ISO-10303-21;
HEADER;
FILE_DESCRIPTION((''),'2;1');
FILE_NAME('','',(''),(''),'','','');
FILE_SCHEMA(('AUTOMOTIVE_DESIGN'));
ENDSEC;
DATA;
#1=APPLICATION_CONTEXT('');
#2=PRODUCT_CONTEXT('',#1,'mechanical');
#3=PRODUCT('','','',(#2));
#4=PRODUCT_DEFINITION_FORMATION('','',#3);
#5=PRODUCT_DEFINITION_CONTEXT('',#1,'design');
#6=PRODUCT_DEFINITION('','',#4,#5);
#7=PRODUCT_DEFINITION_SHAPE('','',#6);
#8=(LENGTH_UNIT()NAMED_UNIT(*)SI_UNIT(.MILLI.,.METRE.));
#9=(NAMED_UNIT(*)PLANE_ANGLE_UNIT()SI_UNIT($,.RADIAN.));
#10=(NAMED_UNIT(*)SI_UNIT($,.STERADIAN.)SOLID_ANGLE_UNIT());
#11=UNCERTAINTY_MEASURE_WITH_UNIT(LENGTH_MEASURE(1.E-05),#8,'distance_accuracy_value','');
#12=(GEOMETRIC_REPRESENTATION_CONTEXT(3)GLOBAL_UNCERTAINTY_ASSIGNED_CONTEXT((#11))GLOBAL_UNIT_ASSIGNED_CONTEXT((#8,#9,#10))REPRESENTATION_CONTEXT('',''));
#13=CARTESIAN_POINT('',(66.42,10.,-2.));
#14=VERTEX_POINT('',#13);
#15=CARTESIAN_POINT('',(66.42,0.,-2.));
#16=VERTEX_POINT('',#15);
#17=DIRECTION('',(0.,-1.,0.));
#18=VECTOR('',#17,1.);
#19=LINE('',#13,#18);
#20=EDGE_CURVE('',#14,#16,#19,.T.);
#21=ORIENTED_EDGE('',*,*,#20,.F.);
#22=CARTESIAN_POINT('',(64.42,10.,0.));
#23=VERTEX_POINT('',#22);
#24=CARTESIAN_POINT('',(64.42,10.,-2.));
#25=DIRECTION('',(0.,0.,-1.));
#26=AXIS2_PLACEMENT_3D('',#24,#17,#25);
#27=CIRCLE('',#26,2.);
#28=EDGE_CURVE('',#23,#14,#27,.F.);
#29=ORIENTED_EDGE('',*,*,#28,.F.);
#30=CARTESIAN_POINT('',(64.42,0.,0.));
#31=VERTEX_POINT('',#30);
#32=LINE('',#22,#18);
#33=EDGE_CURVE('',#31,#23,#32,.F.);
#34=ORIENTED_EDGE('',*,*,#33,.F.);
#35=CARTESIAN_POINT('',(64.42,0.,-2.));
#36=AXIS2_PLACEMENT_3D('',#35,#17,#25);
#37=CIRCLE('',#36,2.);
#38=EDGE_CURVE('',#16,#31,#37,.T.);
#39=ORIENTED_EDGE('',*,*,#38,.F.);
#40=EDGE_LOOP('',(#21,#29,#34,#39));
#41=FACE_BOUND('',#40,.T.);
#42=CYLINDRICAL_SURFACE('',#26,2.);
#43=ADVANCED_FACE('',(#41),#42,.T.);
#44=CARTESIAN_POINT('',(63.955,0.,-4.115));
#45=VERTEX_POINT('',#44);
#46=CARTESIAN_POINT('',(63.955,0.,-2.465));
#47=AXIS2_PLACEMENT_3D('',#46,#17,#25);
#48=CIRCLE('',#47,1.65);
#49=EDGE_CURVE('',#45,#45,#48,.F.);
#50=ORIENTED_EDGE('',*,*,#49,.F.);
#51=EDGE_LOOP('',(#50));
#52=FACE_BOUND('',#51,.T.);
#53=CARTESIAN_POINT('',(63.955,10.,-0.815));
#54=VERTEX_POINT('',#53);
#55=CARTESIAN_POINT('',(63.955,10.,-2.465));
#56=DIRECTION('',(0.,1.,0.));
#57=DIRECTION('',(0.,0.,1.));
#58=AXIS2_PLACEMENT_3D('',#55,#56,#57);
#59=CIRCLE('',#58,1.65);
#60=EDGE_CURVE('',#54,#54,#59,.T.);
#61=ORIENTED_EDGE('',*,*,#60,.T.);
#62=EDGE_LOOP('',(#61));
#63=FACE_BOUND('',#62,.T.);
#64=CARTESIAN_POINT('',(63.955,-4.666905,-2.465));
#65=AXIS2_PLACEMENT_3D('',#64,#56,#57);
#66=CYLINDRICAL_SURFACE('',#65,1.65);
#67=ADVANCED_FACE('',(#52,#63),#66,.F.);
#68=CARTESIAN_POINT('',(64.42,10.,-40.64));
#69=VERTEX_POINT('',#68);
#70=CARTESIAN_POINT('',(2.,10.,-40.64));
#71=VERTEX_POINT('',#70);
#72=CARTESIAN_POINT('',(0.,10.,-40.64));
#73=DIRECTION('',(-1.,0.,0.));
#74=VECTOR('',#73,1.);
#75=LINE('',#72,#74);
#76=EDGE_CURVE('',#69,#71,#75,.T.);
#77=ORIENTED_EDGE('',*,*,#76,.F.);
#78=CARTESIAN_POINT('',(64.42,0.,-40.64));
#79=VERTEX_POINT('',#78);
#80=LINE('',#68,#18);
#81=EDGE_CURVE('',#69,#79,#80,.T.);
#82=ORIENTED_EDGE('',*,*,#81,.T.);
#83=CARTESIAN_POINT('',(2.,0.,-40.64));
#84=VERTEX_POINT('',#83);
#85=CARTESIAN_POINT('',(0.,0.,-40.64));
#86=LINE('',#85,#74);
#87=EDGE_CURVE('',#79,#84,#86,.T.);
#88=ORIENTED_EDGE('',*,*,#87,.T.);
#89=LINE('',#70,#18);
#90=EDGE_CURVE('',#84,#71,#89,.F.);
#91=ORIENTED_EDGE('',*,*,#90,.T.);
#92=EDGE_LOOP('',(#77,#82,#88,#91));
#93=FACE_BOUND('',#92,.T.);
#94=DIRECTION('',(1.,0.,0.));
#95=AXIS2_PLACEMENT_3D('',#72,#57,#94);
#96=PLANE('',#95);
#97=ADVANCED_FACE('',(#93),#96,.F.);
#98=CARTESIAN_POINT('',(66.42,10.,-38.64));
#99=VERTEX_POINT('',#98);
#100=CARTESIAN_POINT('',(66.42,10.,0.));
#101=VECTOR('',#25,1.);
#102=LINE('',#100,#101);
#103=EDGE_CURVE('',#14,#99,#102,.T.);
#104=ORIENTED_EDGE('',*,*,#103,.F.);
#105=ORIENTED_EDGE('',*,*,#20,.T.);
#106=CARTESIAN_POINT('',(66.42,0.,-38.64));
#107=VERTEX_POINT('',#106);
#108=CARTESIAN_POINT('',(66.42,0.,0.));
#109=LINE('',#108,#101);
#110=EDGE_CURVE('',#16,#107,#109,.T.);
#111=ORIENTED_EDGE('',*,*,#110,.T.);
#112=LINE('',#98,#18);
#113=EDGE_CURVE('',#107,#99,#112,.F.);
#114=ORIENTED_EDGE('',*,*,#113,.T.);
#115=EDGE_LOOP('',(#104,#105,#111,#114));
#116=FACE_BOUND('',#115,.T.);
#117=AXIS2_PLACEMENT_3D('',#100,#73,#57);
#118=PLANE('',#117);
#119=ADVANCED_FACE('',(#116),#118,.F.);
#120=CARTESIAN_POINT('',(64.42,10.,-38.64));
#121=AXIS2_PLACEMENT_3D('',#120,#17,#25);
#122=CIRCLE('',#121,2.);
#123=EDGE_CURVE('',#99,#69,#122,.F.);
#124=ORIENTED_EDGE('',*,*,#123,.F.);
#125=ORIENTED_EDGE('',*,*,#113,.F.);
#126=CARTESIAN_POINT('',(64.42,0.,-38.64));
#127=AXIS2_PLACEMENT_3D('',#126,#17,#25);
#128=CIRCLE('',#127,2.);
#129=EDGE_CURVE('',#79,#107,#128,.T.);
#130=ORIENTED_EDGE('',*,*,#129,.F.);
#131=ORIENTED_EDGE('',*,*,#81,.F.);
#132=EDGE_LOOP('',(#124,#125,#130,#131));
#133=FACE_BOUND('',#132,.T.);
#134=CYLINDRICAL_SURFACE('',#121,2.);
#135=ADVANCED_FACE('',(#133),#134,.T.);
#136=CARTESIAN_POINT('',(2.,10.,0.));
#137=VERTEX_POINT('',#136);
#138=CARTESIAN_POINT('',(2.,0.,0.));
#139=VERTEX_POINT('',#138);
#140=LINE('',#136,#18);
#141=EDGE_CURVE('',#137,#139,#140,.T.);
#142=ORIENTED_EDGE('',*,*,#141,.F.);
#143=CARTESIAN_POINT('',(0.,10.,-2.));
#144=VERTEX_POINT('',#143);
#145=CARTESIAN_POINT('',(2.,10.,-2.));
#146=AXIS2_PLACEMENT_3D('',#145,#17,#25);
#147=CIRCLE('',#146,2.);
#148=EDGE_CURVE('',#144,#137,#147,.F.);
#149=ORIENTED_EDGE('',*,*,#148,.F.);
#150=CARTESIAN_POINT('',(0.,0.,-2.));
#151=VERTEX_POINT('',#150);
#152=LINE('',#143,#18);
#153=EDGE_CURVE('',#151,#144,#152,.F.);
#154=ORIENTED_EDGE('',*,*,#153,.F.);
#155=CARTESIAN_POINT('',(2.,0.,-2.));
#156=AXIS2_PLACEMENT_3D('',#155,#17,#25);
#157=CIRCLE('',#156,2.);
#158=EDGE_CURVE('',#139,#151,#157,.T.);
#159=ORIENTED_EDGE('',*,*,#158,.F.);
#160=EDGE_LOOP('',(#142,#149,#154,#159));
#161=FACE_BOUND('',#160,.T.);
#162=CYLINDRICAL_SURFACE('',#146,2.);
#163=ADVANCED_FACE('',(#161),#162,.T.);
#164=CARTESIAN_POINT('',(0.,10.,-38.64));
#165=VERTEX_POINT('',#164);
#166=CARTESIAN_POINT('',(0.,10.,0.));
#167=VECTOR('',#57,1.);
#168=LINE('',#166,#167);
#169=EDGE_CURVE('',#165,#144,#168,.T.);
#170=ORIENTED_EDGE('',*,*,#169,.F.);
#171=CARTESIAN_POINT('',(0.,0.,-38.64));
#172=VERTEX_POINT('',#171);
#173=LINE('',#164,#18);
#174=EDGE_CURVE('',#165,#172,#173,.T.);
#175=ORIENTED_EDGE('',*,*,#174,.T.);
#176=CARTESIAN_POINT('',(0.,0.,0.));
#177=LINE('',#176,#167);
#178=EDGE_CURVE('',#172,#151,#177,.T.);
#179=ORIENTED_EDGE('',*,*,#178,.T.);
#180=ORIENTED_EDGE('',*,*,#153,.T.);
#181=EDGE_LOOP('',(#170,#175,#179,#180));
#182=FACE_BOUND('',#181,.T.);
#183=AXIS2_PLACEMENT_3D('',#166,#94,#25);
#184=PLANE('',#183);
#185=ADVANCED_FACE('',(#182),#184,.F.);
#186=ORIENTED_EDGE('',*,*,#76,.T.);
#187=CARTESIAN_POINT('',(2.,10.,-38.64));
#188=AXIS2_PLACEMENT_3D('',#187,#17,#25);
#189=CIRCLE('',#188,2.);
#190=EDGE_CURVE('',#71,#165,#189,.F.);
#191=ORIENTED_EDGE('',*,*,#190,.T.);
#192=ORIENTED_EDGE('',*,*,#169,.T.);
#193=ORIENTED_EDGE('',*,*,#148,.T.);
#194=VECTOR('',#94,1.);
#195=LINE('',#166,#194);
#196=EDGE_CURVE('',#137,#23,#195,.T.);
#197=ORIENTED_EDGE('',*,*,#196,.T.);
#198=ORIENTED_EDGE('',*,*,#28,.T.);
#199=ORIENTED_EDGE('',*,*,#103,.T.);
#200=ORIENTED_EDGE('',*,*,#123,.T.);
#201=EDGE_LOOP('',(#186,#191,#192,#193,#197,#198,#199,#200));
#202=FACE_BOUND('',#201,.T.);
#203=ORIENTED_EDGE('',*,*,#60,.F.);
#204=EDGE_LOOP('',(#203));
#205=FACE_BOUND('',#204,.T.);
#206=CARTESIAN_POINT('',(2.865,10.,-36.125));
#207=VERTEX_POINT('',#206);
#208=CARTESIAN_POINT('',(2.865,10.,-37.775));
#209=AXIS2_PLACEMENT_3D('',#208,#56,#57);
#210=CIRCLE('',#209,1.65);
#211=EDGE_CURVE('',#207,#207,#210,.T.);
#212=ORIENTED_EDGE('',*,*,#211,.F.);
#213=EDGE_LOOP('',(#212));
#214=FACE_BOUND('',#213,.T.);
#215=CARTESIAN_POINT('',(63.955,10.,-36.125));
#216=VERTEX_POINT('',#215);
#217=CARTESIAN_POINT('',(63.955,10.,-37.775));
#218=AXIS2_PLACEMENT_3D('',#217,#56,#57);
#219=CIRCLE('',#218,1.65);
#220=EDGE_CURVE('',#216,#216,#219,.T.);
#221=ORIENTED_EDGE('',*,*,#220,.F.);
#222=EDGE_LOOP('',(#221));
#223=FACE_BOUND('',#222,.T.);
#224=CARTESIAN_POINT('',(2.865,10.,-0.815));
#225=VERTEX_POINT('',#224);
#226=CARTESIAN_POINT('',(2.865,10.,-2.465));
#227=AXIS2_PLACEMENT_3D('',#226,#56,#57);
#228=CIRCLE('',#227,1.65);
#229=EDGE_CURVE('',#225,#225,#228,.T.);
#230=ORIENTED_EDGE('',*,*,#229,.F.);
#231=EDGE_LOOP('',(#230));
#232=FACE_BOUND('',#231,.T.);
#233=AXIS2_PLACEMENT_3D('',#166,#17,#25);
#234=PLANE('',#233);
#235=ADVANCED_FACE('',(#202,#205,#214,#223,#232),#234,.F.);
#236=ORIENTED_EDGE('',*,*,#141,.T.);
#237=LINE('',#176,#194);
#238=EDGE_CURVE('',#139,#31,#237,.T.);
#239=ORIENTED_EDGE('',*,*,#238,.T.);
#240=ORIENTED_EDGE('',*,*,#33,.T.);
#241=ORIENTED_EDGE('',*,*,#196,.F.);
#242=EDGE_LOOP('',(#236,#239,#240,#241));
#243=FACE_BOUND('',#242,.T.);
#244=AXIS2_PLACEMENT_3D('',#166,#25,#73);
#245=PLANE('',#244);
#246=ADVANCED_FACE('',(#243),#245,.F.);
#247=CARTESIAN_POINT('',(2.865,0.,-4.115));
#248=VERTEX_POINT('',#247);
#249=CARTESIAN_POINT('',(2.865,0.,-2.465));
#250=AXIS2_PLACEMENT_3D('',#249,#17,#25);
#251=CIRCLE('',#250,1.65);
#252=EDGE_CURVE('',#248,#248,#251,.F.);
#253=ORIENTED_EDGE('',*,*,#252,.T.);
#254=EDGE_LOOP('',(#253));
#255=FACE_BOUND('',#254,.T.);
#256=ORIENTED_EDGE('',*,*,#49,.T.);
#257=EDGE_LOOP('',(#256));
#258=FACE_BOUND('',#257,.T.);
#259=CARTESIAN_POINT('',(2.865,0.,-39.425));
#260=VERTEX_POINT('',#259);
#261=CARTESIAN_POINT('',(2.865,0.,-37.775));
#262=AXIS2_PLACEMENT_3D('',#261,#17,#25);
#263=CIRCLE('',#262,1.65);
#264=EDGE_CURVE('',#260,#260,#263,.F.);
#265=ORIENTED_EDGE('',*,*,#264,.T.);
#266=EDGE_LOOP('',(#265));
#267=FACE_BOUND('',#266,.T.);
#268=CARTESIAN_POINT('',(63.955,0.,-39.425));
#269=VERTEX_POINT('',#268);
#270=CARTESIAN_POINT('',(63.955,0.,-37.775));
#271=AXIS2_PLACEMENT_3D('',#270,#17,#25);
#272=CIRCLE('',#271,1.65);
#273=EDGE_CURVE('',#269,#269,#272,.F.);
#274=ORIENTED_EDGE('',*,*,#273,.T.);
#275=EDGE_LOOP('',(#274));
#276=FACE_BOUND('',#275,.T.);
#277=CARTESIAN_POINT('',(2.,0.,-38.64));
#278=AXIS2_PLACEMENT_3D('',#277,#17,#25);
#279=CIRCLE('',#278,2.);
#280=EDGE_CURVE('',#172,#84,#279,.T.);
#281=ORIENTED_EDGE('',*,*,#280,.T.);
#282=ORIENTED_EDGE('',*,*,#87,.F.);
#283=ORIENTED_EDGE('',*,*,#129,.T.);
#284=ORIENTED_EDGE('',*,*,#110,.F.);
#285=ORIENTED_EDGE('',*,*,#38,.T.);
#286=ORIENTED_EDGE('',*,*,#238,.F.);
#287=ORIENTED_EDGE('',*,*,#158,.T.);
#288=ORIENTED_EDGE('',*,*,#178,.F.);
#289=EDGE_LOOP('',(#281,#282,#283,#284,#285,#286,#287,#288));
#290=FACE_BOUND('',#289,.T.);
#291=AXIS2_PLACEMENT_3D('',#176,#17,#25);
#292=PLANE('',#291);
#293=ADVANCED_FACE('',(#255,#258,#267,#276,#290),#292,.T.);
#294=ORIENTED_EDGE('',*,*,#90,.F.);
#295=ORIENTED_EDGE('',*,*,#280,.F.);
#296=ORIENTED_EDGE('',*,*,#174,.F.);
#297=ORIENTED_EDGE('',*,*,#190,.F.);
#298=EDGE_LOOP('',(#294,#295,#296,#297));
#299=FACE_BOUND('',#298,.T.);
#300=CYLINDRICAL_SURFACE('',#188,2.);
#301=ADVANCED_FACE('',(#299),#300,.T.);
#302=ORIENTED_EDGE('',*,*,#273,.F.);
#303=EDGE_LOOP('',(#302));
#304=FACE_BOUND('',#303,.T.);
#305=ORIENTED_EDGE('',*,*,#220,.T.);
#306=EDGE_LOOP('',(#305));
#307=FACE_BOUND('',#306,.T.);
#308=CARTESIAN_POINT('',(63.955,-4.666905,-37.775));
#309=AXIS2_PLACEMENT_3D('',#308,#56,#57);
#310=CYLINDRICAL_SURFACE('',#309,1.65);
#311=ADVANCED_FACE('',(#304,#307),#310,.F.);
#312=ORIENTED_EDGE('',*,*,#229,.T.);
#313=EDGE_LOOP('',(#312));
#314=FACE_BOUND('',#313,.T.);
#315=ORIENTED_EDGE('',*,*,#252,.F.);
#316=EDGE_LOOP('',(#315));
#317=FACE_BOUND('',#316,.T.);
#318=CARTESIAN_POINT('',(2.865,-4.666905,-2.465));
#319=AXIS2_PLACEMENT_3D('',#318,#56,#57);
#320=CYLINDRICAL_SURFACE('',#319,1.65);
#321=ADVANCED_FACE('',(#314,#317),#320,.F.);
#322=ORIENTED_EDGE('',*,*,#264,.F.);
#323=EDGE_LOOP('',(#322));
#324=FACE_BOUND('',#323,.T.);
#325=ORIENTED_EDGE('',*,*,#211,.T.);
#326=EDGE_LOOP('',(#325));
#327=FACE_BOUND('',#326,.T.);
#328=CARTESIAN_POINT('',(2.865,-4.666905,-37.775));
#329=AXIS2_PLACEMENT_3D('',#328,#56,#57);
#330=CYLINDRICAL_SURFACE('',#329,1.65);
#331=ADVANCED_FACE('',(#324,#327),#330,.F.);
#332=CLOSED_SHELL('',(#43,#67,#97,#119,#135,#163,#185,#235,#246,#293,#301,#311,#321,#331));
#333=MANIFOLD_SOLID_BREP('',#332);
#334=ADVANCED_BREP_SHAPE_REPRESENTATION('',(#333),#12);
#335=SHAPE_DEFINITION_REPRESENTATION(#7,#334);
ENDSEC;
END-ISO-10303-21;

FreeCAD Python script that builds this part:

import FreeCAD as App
import Part
import Sketcher

V = App.Vector


def edges_at(feature, points):
    """Names of the edges that pass closest to the given points."""
    edges = feature.Shape.Edges
    near = lambda p: min(range(len(edges)), key=lambda i: edges[i].distToShape(Part.Vertex(*p))[0])
    return sorted({f"Edge{near(p) + 1}" for p in points})

doc = App.newDocument("Part")
body = doc.addObject("PartDesign::Body", "Body")

# Sketch on XZ plane
sketch1 = body.newObject("Sketcher::SketchObject", "Sketch")
sketch1.AttachmentSupport = (doc.getObject("XZ_Plane"), [""])
sketch1.MapMode = "FlatFace"
sketch1.addGeometry(Part.LineSegment(V(0, -41, 0), V(0, 0, 0)), False)
sketch1.addGeometry(Part.LineSegment(V(0, 0, 0), V(66, 0, 0)), False)
sketch1.addGeometry(Part.LineSegment(V(66, 0, 0), V(66, -41, 0)), False)
sketch1.addGeometry(Part.LineSegment(V(66, -41, 0), V(0, -41, 0)), False)
sketch1.addConstraint(Sketcher.Constraint("Coincident", 0, 2, 1, 1))
sketch1.addConstraint(Sketcher.Constraint("Coincident", 1, 2, 2, 1))
sketch1.addConstraint(Sketcher.Constraint("Coincident", 2, 2, 3, 1))
sketch1.addConstraint(Sketcher.Constraint("Coincident", 3, 2, 0, 1))
sketch1.addConstraint(Sketcher.Constraint("Vertical", 0))
sketch1.addConstraint(Sketcher.Constraint("Horizontal", 1))
sketch1.addConstraint(Sketcher.Constraint("Vertical", 2))
sketch1.addConstraint(Sketcher.Constraint("Horizontal", 3))
sketch1.addConstraint(Sketcher.Constraint("Coincident", 0, 2, -1, 1))
sketch1.addConstraint(Sketcher.Constraint("DistanceX", 1, 1, 1, 2, 66.42))
sketch1.addConstraint(Sketcher.Constraint("DistanceY", 0, 1, 0, 2, 40.64))
pad1 = body.newObject("PartDesign::Pad", "Pad")
pad1.Profile = sketch1
pad1.Length = 10
pad1.Reversed = True

# Sketch on XZ plane
sketch2 = body.newObject("Sketcher::SketchObject", "Sketch001")
sketch2.AttachmentSupport = (doc.getObject("XZ_Plane"), [""])
sketch2.MapMode = "FlatFace"
sketch2.AttachmentOffset = App.Placement(V(0, 0, -10), App.Rotation())
sketch2.addGeometry(Part.Circle(V(64, -2.5, 0), V(0, 0, 1), 1.6), False)
sketch2.addGeometry(Part.Circle(V(64, -37.8, 0), V(0, 0, 1), 1.6), False)
sketch2.addGeometry(Part.Circle(V(2.9, -37.8, 0), V(0, 0, 1), 1.6), False)
sketch2.addGeometry(Part.Circle(V(2.9, -2.5, 0), V(0, 0, 1), 1.6), False)
sketch2.addConstraint(Sketcher.Constraint("Equal", 0, 1))
sketch2.addConstraint(Sketcher.Constraint("Equal", 1, 2))
sketch2.addConstraint(Sketcher.Constraint("Equal", 2, 3))
sketch2.addConstraint(Sketcher.Constraint("Horizontal", 1, 3, 2, 3))
sketch2.addConstraint(Sketcher.Constraint("Horizontal", 0, 3, 3, 3))
sketch2.addConstraint(Sketcher.Constraint("Vertical", 0, 3, 1, 3))
sketch2.addConstraint(Sketcher.Constraint("Vertical", 2, 3, 3, 3))
sketch2.addConstraint(Sketcher.Constraint("Diameter", 0, 3.3))
sketch2.addConstraint(Sketcher.Constraint("DistanceY", 1, 3, 0, 3, 35.31))
sketch2.addConstraint(Sketcher.Constraint("DistanceX", 2, 3, 1, 3, 61.09))
sketch2.addConstraint(Sketcher.Constraint("DistanceX", -1, 1, 0, 3, 63.955))
sketch2.addConstraint(Sketcher.Constraint("DistanceY", 0, 3, -1, 1, 2.465))
pocket1 = body.newObject("PartDesign::Pocket", "Pocket")
pocket1.Profile = sketch2
pocket1.Length = 10
pocket1.Reversed = True
doc.recompute()

fillet = body.newObject("PartDesign::Fillet", "Fillet")
fillet.Base = (pocket1, edges_at(pocket1, [
    (0, 5, -40.64),
    (66.42, 5, -40.64),
    (66.42, 5, 0),
    (0, 5, 0),
]))
fillet.Radius = 2

doc.recompute()
